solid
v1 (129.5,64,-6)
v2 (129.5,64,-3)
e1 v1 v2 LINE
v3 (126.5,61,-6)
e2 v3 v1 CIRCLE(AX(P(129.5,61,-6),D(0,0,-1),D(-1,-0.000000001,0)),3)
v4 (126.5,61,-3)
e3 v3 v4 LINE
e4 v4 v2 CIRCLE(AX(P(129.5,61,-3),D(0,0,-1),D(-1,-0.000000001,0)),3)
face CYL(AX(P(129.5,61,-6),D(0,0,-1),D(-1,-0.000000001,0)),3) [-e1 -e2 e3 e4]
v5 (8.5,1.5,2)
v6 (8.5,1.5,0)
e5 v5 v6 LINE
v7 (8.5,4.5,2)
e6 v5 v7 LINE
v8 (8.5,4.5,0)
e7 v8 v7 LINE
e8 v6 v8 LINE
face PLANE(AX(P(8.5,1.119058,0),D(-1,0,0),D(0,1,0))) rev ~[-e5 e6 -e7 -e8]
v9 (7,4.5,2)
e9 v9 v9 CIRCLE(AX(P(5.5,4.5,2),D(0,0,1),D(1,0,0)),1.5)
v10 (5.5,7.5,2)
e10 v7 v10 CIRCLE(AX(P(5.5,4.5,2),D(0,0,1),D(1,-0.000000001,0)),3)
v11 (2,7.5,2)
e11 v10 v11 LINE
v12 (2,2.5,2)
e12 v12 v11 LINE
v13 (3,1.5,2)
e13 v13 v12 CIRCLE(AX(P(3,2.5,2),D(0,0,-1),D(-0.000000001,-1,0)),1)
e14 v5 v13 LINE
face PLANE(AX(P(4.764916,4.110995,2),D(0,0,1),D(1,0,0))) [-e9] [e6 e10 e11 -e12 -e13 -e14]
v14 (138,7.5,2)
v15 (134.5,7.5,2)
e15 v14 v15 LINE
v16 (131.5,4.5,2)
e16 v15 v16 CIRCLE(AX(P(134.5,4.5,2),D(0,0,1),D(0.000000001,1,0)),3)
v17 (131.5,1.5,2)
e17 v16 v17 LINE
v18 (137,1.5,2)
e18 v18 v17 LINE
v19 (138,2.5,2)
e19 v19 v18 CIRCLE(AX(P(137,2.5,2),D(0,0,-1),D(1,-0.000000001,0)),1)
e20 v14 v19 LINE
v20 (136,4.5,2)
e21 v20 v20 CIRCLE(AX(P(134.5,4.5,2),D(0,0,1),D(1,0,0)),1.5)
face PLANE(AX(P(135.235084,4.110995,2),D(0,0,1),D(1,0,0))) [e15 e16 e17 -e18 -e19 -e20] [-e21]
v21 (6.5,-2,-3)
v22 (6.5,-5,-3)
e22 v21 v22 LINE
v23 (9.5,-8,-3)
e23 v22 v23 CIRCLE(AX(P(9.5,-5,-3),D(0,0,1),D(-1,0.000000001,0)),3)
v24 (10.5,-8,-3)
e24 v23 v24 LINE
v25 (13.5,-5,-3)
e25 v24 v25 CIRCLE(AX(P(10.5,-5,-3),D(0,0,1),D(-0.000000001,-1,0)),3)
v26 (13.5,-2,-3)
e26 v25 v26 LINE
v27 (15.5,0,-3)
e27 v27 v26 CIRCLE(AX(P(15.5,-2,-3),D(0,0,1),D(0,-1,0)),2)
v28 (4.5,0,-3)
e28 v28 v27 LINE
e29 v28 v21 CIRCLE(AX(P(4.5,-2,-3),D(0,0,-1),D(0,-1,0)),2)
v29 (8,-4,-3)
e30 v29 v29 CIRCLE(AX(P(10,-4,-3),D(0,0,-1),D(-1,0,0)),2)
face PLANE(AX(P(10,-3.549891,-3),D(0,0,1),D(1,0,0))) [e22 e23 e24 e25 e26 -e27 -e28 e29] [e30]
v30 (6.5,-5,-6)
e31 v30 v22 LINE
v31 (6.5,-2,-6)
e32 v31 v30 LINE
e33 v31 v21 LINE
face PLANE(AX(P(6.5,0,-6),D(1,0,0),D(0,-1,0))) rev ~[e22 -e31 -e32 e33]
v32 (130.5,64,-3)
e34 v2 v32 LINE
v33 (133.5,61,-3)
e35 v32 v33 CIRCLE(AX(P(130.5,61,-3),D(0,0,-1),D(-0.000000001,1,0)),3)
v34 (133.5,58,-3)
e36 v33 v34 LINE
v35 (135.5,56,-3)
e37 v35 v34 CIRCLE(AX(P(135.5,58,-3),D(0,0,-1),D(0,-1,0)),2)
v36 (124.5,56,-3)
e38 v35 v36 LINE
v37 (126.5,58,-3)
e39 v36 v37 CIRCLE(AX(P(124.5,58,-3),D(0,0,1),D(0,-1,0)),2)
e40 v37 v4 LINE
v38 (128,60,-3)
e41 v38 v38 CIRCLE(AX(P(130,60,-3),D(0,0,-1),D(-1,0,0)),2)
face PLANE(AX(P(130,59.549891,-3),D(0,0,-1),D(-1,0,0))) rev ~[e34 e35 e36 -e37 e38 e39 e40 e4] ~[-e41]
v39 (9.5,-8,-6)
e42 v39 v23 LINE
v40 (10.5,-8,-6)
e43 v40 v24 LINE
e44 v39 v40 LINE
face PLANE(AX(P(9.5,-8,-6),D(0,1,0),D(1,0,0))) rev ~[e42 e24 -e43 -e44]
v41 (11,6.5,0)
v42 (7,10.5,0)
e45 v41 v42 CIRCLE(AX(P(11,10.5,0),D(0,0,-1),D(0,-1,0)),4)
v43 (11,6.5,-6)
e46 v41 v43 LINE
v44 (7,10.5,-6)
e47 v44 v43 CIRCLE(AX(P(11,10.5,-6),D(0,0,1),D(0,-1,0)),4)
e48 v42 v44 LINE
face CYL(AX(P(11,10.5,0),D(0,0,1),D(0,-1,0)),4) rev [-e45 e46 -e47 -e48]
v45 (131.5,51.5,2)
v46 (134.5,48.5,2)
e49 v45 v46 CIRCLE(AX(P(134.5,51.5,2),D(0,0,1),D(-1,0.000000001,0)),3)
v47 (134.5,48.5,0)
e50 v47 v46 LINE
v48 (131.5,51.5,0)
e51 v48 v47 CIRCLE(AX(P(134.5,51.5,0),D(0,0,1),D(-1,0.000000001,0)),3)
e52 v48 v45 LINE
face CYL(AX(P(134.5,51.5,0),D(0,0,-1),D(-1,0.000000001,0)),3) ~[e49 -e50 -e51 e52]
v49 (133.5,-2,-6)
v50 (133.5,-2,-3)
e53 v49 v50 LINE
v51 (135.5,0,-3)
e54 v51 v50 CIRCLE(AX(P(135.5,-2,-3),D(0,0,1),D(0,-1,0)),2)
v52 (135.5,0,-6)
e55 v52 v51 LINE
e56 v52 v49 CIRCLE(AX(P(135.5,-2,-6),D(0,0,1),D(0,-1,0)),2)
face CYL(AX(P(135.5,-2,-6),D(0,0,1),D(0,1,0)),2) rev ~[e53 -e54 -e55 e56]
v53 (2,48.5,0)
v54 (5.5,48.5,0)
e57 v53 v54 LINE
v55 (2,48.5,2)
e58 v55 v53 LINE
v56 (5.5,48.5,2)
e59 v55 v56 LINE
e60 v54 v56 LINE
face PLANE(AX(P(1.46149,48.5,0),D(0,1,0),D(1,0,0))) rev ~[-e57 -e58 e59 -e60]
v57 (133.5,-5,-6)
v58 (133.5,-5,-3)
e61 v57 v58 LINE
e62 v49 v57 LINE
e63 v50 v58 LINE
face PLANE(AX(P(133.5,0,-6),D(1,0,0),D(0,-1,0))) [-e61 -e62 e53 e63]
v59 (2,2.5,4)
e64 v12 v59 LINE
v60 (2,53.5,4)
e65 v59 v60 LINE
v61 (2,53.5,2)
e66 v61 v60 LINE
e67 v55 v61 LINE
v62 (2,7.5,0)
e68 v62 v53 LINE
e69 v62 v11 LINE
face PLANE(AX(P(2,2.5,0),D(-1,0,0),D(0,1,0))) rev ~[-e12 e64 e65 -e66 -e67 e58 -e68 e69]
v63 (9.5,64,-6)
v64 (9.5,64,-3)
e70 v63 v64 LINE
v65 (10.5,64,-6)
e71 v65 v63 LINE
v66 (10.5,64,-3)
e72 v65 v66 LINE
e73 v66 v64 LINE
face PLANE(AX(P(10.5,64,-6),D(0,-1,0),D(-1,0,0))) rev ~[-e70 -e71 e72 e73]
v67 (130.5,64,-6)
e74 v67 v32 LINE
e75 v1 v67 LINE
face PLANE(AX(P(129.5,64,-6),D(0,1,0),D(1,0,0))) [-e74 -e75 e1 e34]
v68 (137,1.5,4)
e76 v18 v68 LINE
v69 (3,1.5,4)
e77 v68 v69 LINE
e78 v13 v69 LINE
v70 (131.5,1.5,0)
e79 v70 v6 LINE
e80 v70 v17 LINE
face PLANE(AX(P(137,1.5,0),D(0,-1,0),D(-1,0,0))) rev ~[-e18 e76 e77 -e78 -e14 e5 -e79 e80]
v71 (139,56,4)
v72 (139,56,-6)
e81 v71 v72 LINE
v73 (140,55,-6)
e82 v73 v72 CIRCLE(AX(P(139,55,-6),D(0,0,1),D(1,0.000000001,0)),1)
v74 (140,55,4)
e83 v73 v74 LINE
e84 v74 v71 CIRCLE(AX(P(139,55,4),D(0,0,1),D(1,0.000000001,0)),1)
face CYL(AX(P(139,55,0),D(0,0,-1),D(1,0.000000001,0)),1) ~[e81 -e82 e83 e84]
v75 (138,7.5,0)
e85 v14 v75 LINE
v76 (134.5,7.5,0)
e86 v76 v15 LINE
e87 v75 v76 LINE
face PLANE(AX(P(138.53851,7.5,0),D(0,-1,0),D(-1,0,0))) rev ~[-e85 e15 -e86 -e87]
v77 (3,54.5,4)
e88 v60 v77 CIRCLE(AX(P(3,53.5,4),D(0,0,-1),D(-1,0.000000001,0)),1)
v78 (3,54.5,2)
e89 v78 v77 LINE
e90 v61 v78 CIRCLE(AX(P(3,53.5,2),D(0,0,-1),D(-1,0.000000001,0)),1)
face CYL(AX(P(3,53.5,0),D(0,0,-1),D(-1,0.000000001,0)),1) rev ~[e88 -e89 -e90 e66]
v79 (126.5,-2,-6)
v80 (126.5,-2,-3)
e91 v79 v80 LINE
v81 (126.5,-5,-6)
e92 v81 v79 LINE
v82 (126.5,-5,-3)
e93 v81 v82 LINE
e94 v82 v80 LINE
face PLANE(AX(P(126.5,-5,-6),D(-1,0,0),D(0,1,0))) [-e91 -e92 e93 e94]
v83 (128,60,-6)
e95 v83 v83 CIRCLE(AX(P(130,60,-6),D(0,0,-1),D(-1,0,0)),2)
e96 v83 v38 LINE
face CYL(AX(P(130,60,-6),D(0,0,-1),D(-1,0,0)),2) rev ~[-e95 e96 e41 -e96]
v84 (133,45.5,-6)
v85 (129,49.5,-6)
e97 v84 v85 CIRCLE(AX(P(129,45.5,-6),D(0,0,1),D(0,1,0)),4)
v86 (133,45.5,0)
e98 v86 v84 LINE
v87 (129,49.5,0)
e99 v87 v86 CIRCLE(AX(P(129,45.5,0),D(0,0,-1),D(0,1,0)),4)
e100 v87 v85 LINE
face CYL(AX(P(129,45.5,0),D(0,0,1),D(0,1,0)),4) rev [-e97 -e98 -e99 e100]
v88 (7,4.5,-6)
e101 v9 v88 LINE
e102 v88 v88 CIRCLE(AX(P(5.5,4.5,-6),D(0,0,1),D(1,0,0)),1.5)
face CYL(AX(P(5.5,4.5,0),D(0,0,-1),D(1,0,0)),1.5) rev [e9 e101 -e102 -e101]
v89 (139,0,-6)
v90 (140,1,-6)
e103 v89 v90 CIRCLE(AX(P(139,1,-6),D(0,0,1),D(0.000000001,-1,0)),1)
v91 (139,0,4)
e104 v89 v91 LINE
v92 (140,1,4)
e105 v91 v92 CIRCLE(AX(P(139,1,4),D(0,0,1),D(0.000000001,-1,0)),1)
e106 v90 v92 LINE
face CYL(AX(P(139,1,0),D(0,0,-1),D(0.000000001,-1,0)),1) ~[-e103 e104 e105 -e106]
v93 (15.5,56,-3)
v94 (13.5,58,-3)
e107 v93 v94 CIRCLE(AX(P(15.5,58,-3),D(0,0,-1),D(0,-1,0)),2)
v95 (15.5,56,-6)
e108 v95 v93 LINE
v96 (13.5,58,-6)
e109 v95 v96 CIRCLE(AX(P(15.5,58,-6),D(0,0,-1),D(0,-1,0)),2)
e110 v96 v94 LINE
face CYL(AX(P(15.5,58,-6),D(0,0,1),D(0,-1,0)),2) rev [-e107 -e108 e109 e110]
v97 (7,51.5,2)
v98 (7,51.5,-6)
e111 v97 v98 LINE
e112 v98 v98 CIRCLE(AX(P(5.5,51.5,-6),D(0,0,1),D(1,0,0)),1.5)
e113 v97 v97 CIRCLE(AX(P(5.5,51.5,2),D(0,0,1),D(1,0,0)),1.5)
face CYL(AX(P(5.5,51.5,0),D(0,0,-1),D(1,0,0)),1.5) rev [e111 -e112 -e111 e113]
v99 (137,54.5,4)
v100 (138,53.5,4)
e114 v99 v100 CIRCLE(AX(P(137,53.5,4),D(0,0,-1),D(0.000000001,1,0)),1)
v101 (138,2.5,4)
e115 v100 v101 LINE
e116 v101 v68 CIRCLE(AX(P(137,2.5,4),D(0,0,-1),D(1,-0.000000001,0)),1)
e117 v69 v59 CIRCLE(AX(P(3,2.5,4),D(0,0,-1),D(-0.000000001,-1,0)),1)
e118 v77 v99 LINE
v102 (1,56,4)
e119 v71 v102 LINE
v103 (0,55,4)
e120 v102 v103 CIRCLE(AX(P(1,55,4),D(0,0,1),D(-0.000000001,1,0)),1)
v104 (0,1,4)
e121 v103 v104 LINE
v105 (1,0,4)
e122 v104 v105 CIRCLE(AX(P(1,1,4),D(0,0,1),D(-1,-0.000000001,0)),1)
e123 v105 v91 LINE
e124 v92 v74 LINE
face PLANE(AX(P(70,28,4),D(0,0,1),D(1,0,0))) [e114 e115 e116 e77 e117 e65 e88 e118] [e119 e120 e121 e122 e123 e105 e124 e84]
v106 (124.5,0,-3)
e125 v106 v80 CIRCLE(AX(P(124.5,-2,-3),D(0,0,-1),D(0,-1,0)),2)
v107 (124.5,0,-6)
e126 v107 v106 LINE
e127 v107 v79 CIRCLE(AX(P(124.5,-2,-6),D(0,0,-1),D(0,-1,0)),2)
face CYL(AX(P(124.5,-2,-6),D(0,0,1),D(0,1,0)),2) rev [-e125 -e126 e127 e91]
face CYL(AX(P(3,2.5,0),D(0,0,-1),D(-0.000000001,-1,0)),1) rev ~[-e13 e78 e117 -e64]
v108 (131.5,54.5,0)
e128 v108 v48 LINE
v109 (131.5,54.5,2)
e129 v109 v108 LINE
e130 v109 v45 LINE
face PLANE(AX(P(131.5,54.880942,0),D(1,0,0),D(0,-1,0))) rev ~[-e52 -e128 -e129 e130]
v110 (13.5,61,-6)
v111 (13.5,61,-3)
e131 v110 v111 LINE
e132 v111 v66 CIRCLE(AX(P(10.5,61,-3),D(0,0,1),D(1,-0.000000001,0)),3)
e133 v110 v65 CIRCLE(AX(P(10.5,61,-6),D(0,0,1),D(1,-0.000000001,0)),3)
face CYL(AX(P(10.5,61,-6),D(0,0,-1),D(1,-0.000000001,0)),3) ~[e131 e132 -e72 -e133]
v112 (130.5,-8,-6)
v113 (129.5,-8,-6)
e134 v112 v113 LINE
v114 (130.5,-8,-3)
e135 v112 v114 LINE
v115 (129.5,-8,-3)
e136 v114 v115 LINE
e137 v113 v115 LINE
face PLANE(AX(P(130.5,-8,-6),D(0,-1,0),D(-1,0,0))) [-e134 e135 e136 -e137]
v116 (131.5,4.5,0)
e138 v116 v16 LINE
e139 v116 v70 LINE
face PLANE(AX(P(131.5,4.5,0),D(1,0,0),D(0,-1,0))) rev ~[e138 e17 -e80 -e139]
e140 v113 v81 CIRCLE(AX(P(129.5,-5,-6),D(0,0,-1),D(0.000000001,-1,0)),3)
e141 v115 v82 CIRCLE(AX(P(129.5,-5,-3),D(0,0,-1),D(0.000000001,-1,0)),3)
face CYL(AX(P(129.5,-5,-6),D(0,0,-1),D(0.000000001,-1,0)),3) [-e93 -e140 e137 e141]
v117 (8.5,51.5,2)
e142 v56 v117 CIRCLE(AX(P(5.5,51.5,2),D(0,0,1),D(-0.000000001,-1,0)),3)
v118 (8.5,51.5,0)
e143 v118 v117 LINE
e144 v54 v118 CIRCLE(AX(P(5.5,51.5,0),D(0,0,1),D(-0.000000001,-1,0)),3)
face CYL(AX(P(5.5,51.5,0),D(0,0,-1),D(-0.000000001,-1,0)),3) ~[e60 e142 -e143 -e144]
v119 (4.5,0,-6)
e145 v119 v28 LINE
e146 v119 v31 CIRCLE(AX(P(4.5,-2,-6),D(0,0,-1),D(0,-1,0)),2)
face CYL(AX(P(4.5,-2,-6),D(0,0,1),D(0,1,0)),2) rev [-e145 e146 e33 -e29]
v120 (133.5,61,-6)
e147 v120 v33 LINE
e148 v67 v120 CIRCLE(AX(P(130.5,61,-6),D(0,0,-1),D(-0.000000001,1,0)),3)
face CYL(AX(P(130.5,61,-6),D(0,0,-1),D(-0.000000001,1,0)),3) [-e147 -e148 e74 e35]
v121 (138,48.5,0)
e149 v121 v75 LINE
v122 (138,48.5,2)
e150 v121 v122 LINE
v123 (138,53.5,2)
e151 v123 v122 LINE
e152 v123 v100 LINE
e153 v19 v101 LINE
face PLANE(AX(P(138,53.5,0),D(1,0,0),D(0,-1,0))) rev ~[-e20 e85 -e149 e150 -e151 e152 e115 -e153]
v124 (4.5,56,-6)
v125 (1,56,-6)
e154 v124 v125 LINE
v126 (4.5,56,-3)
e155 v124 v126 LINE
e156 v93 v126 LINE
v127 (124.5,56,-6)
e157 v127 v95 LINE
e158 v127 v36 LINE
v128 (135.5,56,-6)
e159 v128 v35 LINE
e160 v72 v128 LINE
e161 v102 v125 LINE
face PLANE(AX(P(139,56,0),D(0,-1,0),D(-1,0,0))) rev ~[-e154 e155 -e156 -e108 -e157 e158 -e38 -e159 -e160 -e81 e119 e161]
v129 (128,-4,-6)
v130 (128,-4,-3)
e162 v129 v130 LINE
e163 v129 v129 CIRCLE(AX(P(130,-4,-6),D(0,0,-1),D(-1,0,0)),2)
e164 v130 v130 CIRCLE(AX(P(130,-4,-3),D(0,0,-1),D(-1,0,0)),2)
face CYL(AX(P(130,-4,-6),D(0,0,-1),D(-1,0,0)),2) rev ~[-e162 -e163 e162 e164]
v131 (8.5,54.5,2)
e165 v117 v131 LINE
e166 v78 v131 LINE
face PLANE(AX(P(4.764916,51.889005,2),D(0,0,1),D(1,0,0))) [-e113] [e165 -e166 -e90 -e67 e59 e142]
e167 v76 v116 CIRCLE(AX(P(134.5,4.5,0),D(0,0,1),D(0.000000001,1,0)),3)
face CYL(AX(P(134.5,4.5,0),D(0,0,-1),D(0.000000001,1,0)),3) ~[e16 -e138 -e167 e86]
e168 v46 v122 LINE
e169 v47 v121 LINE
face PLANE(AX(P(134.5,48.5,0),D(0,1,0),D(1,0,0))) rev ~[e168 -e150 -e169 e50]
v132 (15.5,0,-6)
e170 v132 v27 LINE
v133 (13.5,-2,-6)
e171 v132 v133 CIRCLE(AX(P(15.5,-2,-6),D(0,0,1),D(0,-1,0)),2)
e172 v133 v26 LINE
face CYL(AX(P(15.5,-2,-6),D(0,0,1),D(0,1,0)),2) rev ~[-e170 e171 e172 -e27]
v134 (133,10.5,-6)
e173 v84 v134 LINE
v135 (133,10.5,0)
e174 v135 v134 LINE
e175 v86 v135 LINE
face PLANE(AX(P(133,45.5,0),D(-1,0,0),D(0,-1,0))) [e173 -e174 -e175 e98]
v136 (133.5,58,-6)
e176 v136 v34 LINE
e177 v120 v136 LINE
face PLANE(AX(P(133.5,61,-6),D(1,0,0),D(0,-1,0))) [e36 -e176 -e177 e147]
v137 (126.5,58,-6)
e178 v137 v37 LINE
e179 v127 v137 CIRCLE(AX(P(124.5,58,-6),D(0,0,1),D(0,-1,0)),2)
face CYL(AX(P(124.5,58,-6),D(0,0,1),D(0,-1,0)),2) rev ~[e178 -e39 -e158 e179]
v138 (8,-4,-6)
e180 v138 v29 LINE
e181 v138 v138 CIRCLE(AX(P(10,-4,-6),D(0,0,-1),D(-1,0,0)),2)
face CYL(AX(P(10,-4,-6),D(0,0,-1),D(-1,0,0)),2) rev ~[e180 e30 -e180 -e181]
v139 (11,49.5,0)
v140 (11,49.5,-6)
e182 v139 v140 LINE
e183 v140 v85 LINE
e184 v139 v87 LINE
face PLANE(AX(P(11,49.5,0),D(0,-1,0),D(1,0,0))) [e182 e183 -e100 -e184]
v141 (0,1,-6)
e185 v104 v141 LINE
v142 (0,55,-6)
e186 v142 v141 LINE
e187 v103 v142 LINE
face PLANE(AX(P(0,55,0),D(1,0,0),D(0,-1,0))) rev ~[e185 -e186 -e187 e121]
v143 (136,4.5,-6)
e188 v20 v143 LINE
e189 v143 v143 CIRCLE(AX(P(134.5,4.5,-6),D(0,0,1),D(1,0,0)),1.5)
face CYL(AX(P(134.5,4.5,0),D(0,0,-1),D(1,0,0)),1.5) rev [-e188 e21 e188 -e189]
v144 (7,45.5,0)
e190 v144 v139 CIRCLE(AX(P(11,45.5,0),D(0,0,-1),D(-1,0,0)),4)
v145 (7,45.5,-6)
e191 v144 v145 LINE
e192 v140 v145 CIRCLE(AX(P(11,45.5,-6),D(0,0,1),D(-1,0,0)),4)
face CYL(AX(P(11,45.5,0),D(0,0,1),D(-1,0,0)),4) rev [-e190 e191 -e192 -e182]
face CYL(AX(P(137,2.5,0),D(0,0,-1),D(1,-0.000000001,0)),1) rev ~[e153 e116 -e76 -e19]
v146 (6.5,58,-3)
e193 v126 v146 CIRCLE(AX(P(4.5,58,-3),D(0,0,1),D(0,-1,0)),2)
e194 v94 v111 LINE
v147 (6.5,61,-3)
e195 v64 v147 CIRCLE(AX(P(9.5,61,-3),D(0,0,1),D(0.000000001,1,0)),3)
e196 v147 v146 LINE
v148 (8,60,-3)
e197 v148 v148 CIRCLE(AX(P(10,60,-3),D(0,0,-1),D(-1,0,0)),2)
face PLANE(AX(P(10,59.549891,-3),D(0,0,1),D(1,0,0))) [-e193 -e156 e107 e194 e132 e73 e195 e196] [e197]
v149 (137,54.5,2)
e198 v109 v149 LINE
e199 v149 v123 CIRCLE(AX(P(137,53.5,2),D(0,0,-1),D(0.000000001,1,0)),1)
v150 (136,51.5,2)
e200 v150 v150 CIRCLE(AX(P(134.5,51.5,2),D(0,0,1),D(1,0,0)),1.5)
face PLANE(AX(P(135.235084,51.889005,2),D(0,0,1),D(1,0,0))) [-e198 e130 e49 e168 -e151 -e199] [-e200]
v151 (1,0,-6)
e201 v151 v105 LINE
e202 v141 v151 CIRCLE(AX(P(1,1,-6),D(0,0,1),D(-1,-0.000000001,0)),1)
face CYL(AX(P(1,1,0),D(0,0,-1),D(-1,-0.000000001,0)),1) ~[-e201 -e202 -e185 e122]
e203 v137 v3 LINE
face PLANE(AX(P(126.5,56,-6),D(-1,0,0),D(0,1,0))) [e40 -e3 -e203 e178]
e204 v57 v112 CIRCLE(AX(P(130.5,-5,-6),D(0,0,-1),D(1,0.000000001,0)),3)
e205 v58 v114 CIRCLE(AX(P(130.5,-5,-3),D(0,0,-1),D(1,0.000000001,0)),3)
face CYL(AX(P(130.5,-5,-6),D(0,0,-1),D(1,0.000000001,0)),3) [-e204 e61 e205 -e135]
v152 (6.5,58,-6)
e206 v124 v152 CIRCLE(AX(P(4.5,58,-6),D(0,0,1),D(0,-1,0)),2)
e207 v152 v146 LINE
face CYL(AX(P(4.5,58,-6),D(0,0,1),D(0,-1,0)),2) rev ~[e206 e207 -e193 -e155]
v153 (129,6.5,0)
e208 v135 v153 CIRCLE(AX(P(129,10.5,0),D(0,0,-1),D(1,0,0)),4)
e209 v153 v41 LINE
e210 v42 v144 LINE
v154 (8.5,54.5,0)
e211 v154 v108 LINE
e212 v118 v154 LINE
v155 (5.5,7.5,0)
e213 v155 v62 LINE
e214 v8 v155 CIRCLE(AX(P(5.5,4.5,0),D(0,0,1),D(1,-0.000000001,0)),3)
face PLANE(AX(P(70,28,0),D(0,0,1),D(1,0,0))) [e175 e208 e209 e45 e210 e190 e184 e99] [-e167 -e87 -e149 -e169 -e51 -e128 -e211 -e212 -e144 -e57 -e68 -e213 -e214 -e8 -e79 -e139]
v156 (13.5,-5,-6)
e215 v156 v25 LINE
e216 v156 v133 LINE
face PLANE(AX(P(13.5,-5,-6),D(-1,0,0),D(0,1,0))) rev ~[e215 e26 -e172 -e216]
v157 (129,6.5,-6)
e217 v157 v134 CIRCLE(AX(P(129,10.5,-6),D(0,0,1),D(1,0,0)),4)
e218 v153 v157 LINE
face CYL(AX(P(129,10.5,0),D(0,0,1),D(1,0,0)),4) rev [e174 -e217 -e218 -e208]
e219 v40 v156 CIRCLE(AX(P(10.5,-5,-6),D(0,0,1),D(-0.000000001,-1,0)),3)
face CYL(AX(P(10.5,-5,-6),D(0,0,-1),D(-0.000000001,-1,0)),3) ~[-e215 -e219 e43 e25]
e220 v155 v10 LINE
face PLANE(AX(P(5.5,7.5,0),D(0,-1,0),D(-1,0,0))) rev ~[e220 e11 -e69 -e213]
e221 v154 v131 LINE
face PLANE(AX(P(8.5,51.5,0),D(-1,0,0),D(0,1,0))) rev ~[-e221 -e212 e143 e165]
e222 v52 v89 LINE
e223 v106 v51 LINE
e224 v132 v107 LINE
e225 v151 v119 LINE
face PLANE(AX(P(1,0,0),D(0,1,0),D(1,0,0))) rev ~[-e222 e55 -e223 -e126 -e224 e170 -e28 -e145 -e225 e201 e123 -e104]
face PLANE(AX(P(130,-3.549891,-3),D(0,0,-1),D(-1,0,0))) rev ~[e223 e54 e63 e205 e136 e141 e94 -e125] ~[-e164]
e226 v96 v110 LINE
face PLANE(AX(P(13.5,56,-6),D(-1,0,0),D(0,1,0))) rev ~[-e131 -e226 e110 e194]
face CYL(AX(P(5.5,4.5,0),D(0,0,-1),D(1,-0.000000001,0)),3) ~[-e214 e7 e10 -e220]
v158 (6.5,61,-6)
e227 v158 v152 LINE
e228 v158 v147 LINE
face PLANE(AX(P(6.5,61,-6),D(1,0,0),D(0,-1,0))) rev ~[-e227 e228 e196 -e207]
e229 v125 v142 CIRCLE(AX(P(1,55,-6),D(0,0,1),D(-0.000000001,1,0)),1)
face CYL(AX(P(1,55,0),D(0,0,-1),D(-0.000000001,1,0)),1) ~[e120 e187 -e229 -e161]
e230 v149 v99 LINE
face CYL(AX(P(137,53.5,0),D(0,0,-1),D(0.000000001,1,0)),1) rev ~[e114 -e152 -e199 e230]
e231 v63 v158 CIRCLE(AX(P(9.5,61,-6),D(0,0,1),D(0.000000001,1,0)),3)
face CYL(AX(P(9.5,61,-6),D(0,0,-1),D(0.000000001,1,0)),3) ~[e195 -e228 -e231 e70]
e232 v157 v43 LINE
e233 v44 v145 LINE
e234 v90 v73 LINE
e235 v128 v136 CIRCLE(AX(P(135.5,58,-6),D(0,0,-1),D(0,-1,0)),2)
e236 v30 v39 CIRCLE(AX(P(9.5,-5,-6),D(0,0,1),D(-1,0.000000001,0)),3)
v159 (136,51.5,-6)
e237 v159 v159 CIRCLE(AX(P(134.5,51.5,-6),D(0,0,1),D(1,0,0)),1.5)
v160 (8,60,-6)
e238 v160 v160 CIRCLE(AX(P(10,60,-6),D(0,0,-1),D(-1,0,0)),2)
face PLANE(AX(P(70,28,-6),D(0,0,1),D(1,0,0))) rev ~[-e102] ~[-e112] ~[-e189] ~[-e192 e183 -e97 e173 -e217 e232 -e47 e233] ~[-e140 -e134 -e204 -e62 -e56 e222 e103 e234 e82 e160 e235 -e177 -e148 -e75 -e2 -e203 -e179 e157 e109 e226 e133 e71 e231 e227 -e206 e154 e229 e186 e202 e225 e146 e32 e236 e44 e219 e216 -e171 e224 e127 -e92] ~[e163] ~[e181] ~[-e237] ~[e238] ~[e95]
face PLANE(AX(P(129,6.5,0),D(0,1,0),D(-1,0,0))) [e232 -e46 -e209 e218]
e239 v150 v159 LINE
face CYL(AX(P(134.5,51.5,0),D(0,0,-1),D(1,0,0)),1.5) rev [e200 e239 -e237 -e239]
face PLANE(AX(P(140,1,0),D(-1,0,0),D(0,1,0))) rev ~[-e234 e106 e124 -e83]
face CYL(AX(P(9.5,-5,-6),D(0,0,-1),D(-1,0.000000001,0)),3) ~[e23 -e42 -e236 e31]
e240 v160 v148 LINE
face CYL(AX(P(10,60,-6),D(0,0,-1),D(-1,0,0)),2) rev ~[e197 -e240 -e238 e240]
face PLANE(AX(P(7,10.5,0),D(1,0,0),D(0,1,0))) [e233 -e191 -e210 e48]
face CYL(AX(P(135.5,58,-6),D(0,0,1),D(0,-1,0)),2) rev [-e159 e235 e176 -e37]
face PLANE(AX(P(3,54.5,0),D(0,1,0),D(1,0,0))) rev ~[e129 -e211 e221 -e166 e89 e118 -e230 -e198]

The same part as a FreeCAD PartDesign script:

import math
import FreeCAD as App
import Part
import Sketcher
Q = App.Units.Quantity


def edges_at(feature, points):
    """Names of the edges that pass closest to the given points."""
    edges = feature.Shape.Edges
    near = lambda p: min(range(len(edges)), key=lambda i: edges[i].distToShape(Part.Vertex(*p))[0])
    return sorted({f"Edge{near(p) + 1}" for p in points})

doc = App.newDocument("Part")
params = doc.addObject("Spreadsheet::Sheet", "Params")
for row, (alias, value) in enumerate([
    ("sketch1_diameter", "3 mm"),
    ("sketch1_radius", "1 mm"),
    ("sketch1_width", "138 mm"),
    ("sketch1_height", "54 mm"),
    ("pad1_length", "6 mm"),
    ("sketch2_radius", "1 mm"),
    ("sketch2_width", "138 mm"),
    ("sketch2_width2", "134 mm"),
    ("sketch2_height", "54 mm"),
    ("sketch2_height2", "51 mm"),
    ("pad2_length", "4 mm"),
    ("sketch3_radius", "4 mm"),
    ("sketch3_width", "118 mm"),
    ("sketch3_height", "35 mm"),
    ("sketch4_diameter", "4 mm"),
    ("sketch4_radius", "3 mm"),
    ("sketch4_width", "7 mm"),
    ("sketch4_height", "5 mm"),
    ("pad3_length", "3 mm"),
    ("fillet_radius", "2 mm"),
    ("sketch5_diameter", "3 mm"),
    ("sketch5_radius", "3 mm"),
    ("pad4_length", "2 mm"),
], start=1):
    params.set(f"A{row}", alias)
    params.set(f"B{row}", "=" + value)
    params.setAlias(f"B{row}", alias)

body = doc.addObject("PartDesign::Body", "Body")

# Sketch on XY plane
sketch1 = body.newObject("Sketcher::SketchObject", "Sketch")
sketch1.AttachmentSupport = (doc.getObject("XY_Plane"), [""])
sketch1.MapMode = "FlatFace"
sketch1.addGeometry([
    Part.LineSegment(App.Vector(1, 0, 0), App.Vector(139, 0, 0)),  # 0
    Part.ArcOfCircle(Part.Circle(App.Vector(139, 1, 0), App.Vector(0, 0, 1), 1), math.radians(-90), math.radians(0)),  # 1
    Part.LineSegment(App.Vector(140, 1, 0), App.Vector(140, 55, 0)),  # 2
    Part.ArcOfCircle(Part.Circle(App.Vector(139, 55, 0), App.Vector(0, 0, 1), 1), math.radians(0), math.radians(90)),  # 3
    Part.LineSegment(App.Vector(139, 56, 0), App.Vector(1, 56, 0)),  # 4
    Part.ArcOfCircle(Part.Circle(App.Vector(1, 55, 0), App.Vector(0, 0, 1), 1), math.radians(90), math.radians(180)),  # 5
    Part.LineSegment(App.Vector(0, 55, 0), App.Vector(0, 1, 0)),  # 6
    Part.ArcOfCircle(Part.Circle(App.Vector(1, 1, 0), App.Vector(0, 0, 1), 1), math.radians(-180), math.radians(-90)),  # 7
    Part.Circle(App.Vector(5.5, 4.5, 0), App.Vector(0, 0, 1), 1.5),  # 8
    Part.Circle(App.Vector(134.5, 4.5, 0), App.Vector(0, 0, 1), 1.5),  # 9
    Part.Circle(App.Vector(5.5, 51.5, 0), App.Vector(0, 0, 1), 1.5),  # 10
    Part.Circle(App.Vector(134.5, 51.5, 0), App.Vector(0, 0, 1), 1.5),  # 11
], False)
sketch1.addConstraint([
    Sketcher.Constraint("Tangent", 0, 2, 1, 1),
    Sketcher.Constraint("Tangent", 1, 2, 2, 1),
    Sketcher.Constraint("Tangent", 2, 2, 3, 1),
    Sketcher.Constraint("Tangent", 3, 2, 4, 1),
    Sketcher.Constraint("Tangent", 4, 2, 5, 1),
    Sketcher.Constraint("Tangent", 5, 2, 6, 1),
    Sketcher.Constraint("Tangent", 6, 2, 7, 1),
    Sketcher.Constraint("Tangent", 7, 2, 0, 1),
    Sketcher.Constraint("Horizontal", 0),
    Sketcher.Constraint("Vertical", 2),
    Sketcher.Constraint("Horizontal", 4),
    Sketcher.Constraint("Vertical", 6),
    Sketcher.Constraint("Equal", 1, 3),
    Sketcher.Constraint("Equal", 3, 5),
    Sketcher.Constraint("Equal", 5, 7),
    Sketcher.Constraint("Equal", 8, 9),
    Sketcher.Constraint("Equal", 9, 10),
    Sketcher.Constraint("Equal", 10, 11),
    Sketcher.Constraint("PointOnObject", 0, 2, -1),
    Sketcher.Constraint("PointOnObject", 5, 2, -2),
    Sketcher.Constraint("Horizontal", 8, 3, 9, 3),
    Sketcher.Constraint("Horizontal", 10, 3, 11, 3),
    Sketcher.Constraint("Vertical", 8, 3, 10, 3),
    Sketcher.Constraint("Vertical", 9, 3, 11, 3),
    Sketcher.Constraint("Diameter", 8, Q("3 mm")),
    Sketcher.Constraint("Radius", 1, Q("1 mm")),
    Sketcher.Constraint("DistanceX", 0, 1, 0, 2, Q("138 mm")),
    Sketcher.Constraint("DistanceY", 2, 1, 2, 2, Q("54 mm")),
    Sketcher.Constraint("DistanceX", 8, 3, 9, 3, Q("129 mm")),
    Sketcher.Constraint("DistanceY", 8, 3, 10, 3, Q("47 mm")),
    Sketcher.Constraint("DistanceX", -1, 1, 8, 3, Q("5.5 mm")),
    Sketcher.Constraint("DistanceY", -1, 1, 8, 3, Q("4.5 mm")),
])
sketch1.setExpression("Constraints[24]", "Params.sketch1_diameter")
sketch1.setExpression("Constraints[25]", "Params.sketch1_radius")
sketch1.setExpression("Constraints[26]", "Params.sketch1_width")
sketch1.setExpression("Constraints[27]", "Params.sketch1_height")
pad1 = body.newObject("PartDesign::Pad", "Pad")
pad1.Profile = sketch1
pad1.setExpression("Length", "Params.pad1_length")
pad1.Reversed = True

# Sketch on XY plane
sketch2 = body.newObject("Sketcher::SketchObject", "Sketch001")
sketch2.AttachmentSupport = (doc.getObject("XY_Plane"), [""])
sketch2.MapMode = "FlatFace"
sketch2.addGeometry([
    Part.ArcOfCircle(Part.Circle(App.Vector(1, 1, 0), App.Vector(0, 0, 1), 1), math.radians(-180), math.radians(-90)),  # 0
    Part.LineSegment(App.Vector(1, 0, 0), App.Vector(139, 0, 0)),  # 1
    Part.ArcOfCircle(Part.Circle(App.Vector(139, 1, 0), App.Vector(0, 0, 1), 1), math.radians(-90), math.radians(0)),  # 2
    Part.LineSegment(App.Vector(140, 1, 0), App.Vector(140, 55, 0)),  # 3
    Part.ArcOfCircle(Part.Circle(App.Vector(139, 55, 0), App.Vector(0, 0, 1), 1), math.radians(0), math.radians(90)),  # 4
    Part.LineSegment(App.Vector(139, 56, 0), App.Vector(1, 56, 0)),  # 5
    Part.ArcOfCircle(Part.Circle(App.Vector(1, 55, 0), App.Vector(0, 0, 1), 1), math.radians(90), math.radians(180)),  # 6
    Part.LineSegment(App.Vector(0, 55, 0), App.Vector(0, 1, 0)),  # 7
    Part.LineSegment(App.Vector(2, 2.5, 0), App.Vector(2, 53.5, 0)),  # 8
    Part.ArcOfCircle(Part.Circle(App.Vector(3, 53.5, 0), App.Vector(0, 0, 1), 1), math.radians(90), math.radians(180)),  # 9
    Part.LineSegment(App.Vector(3, 54.5, 0), App.Vector(137, 54.5, 0)),  # 10
    Part.ArcOfCircle(Part.Circle(App.Vector(137, 53.5, 0), App.Vector(0, 0, 1), 1), math.radians(0), math.radians(90)),  # 11
    Part.LineSegment(App.Vector(138, 53.5, 0), App.Vector(138, 2.5, 0)),  # 12
    Part.ArcOfCircle(Part.Circle(App.Vector(137, 2.5, 0), App.Vector(0, 0, 1), 1), math.radians(-90), math.radians(0)),  # 13
    Part.LineSegment(App.Vector(137, 1.5, 0), App.Vector(3, 1.5, 0)),  # 14
    Part.ArcOfCircle(Part.Circle(App.Vector(3, 2.5, 0), App.Vector(0, 0, 1), 1), math.radians(-180), math.radians(-90)),  # 15
], False)
sketch2.addConstraint([
    Sketcher.Constraint("Tangent", 0, 2, 1, 1),
    Sketcher.Constraint("Tangent", 1, 2, 2, 1),
    Sketcher.Constraint("Tangent", 2, 2, 3, 1),
    Sketcher.Constraint("Tangent", 3, 2, 4, 1),
    Sketcher.Constraint("Tangent", 4, 2, 5, 1),
    Sketcher.Constraint("Tangent", 5, 2, 6, 1),
    Sketcher.Constraint("Tangent", 6, 2, 7, 1),
    Sketcher.Constraint("Tangent", 7, 2, 0, 1),
    Sketcher.Constraint("Tangent", 8, 2, 9, 2),
    Sketcher.Constraint("Tangent", 9, 1, 10, 1),
    Sketcher.Constraint("Tangent", 10, 2, 11, 2),
    Sketcher.Constraint("Tangent", 11, 1, 12, 1),
    Sketcher.Constraint("Tangent", 12, 2, 13, 2),
    Sketcher.Constraint("Tangent", 13, 1, 14, 1),
    Sketcher.Constraint("Tangent", 14, 2, 15, 2),
    Sketcher.Constraint("Tangent", 15, 1, 8, 1),
    Sketcher.Constraint("Horizontal", 1),
    Sketcher.Constraint("Vertical", 3),
    Sketcher.Constraint("Horizontal", 5),
    Sketcher.Constraint("Vertical", 7),
    Sketcher.Constraint("Vertical", 8),
    Sketcher.Constraint("Horizontal", 10),
    Sketcher.Constraint("Vertical", 12),
    Sketcher.Constraint("Horizontal", 14),
    Sketcher.Constraint("Equal", 0, 2),
    Sketcher.Constraint("Equal", 2, 4),
    Sketcher.Constraint("Equal", 4, 6),
    Sketcher.Constraint("Equal", 6, 9),
    Sketcher.Constraint("Equal", 9, 11),
    Sketcher.Constraint("Equal", 11, 13),
    Sketcher.Constraint("Equal", 13, 15),
    Sketcher.Constraint("PointOnObject", 0, 2, -1),
    Sketcher.Constraint("PointOnObject", 6, 2, -2),
    Sketcher.Constraint("Radius", 0, Q("1 mm")),
    Sketcher.Constraint("DistanceX", 1, 1, 1, 2, Q("138 mm")),
    Sketcher.Constraint("DistanceX", 10, 1, 10, 2, Q("134 mm")),
    Sketcher.Constraint("DistanceY", 3, 1, 3, 2, Q("54 mm")),
    Sketcher.Constraint("DistanceY", 8, 1, 8, 2, Q("51 mm")),
    Sketcher.Constraint("DistanceX", -1, 1, 9, 3, Q("3 mm")),
    Sketcher.Constraint("DistanceY", -1, 1, 9, 3, Q("53.5 mm")),
])
sketch2.setExpression("Constraints[33]", "Params.sketch2_radius")
sketch2.setExpression("Constraints[34]", "Params.sketch2_width")
sketch2.setExpression("Constraints[35]", "Params.sketch2_width2")
sketch2.setExpression("Constraints[36]", "Params.sketch2_height")
sketch2.setExpression("Constraints[37]", "Params.sketch2_height2")
pad2 = body.newObject("PartDesign::Pad", "Pad001")
pad2.Profile = sketch2
pad2.setExpression("Length", "Params.pad2_length")

# Sketch on XY plane
sketch3 = body.newObject("Sketcher::SketchObject", "Sketch002")
sketch3.AttachmentSupport = (doc.getObject("XY_Plane"), [""])
sketch3.MapMode = "FlatFace"
sketch3.addGeometry([
    Part.LineSegment(App.Vector(129, 49.5, 0), App.Vector(11, 49.5, 0)),  # 0
    Part.ArcOfCircle(Part.Circle(App.Vector(11, 45.5, 0), App.Vector(0, 0, 1), 4), math.radians(90), math.radians(180)),  # 1
    Part.LineSegment(App.Vector(7, 45.5, 0), App.Vector(7, 10.5, 0)),  # 2
    Part.ArcOfCircle(Part.Circle(App.Vector(11, 10.5, 0), App.Vector(0, 0, 1), 4), math.radians(180), math.radians(270)),  # 3
    Part.LineSegment(App.Vector(11, 6.5, 0), App.Vector(129, 6.5, 0)),  # 4
    Part.ArcOfCircle(Part.Circle(App.Vector(129, 10.5, 0), App.Vector(0, 0, 1), 4), math.radians(-90), math.radians(0)),  # 5
    Part.LineSegment(App.Vector(133, 10.5, 0), App.Vector(133, 45.5, 0)),  # 6
    Part.ArcOfCircle(Part.Circle(App.Vector(129, 45.5, 0), App.Vector(0, 0, 1), 4), math.radians(0), math.radians(90)),  # 7
], False)
sketch3.addConstraint([
    Sketcher.Constraint("Tangent", 0, 2, 1, 1),
    Sketcher.Constraint("Tangent", 1, 2, 2, 1),
    Sketcher.Constraint("Tangent", 2, 2, 3, 1),
    Sketcher.Constraint("Tangent", 3, 2, 4, 1),
    Sketcher.Constraint("Tangent", 4, 2, 5, 1),
    Sketcher.Constraint("Tangent", 5, 2, 6, 1),
    Sketcher.Constraint("Tangent", 6, 2, 7, 1),
    Sketcher.Constraint("Tangent", 7, 2, 0, 1),
    Sketcher.Constraint("Horizontal", 0),
    Sketcher.Constraint("Vertical", 2),
    Sketcher.Constraint("Horizontal", 4),
    Sketcher.Constraint("Vertical", 6),
    Sketcher.Constraint("Equal", 1, 3),
    Sketcher.Constraint("Equal", 3, 5),
    Sketcher.Constraint("Equal", 5, 7),
    Sketcher.Constraint("Radius", 1, Q("4 mm")),
    Sketcher.Constraint("DistanceX", 0, 2, 0, 1, Q("118 mm")),
    Sketcher.Constraint("DistanceY", 2, 2, 2, 1, Q("35 mm")),
    Sketcher.Constraint("DistanceX", -1, 1, 1, 3, Q("11 mm")),
    Sketcher.Constraint("DistanceY", -1, 1, 1, 3, Q("45.5 mm")),
])
sketch3.setExpression("Constraints[15]", "Params.sketch3_radius")
sketch3.setExpression("Constraints[16]", "Params.sketch3_width")
sketch3.setExpression("Constraints[17]", "Params.sketch3_height")
pocket1 = body.newObject("PartDesign::Pocket", "Pocket")
pocket1.Profile = sketch3
pocket1.Type = "ThroughAll"
pocket1.Midplane = True

# Sketch on XY plane
sketch4 = body.newObject("Sketcher::SketchObject", "Sketch003")
sketch4.AttachmentSupport = (doc.getObject("XY_Plane"), [""])
sketch4.MapMode = "FlatFace"
sketch4.AttachmentOffset = App.Placement(App.Vector(0, 0, -6), App.Rotation())
sketch4.addGeometry([
    Part.LineSegment(App.Vector(6.5, -5, 0), App.Vector(6.5, 0, 0)),  # 0
    Part.LineSegment(App.Vector(6.5, 0, 0), App.Vector(13.5, 0, 0)),  # 1
    Part.LineSegment(App.Vector(13.5, 0, 0), App.Vector(13.5, -5, 0)),  # 2
    Part.ArcOfCircle(Part.Circle(App.Vector(10.5, -5, 0), App.Vector(0, 0, 1), 3), math.radians(-90), math.radians(0)),  # 3
    Part.LineSegment(App.Vector(10.5, -8, 0), App.Vector(9.5, -8, 0)),  # 4
    Part.ArcOfCircle(Part.Circle(App.Vector(9.5, -5, 0), App.Vector(0, 0, 1), 3), math.radians(180), math.radians(270)),  # 5
    Part.Circle(App.Vector(10, -4, 0), App.Vector(0, 0, 1), 2),  # 6
    Part.LineSegment(App.Vector(13.5, 56, 0), App.Vector(6.5, 56, 0)),  # 7
    Part.LineSegment(App.Vector(6.5, 56, 0), App.Vector(6.5, 61, 0)),  # 8
    Part.ArcOfCircle(Part.Circle(App.Vector(9.5, 61, 0), App.Vector(0, 0, 1), 3), math.radians(90), math.radians(180)),  # 9
    Part.LineSegment(App.Vector(9.5, 64, 0), App.Vector(10.5, 64, 0)),  # 10
    Part.ArcOfCircle(Part.Circle(App.Vector(10.5, 61, 0), App.Vector(0, 0, 1), 3), math.radians(0), math.radians(90)),  # 11
    Part.LineSegment(App.Vector(13.5, 61, 0), App.Vector(13.5, 56, 0)),  # 12
    Part.Circle(App.Vector(10, 60, 0), App.Vector(0, 0, 1), 2),  # 13
    Part.LineSegment(App.Vector(126.5, 56, 0), App.Vector(126.5, 61, 0)),  # 14
    Part.ArcOfCircle(Part.Circle(App.Vector(129.5, 61, 0), App.Vector(0, 0, 1), 3), math.radians(90), math.radians(180)),  # 15
    Part.LineSegment(App.Vector(129.5, 64, 0), App.Vector(130.5, 64, 0)),  # 16
    Part.ArcOfCircle(Part.Circle(App.Vector(130.5, 61, 0), App.Vector(0, 0, 1), 3), math.radians(0), math.radians(90)),  # 17
    Part.LineSegment(App.Vector(133.5, 61, 0), App.Vector(133.5, 56, 0)),  # 18
    Part.LineSegment(App.Vector(133.5, 56, 0), App.Vector(126.5, 56, 0)),  # 19
    Part.Circle(App.Vector(130, 60, 0), App.Vector(0, 0, 1), 2),  # 20
    Part.LineSegment(App.Vector(133.5, 0, 0), App.Vector(133.5, -5, 0)),  # 21
    Part.ArcOfCircle(Part.Circle(App.Vector(130.5, -5, 0), App.Vector(0, 0, 1), 3), math.radians(-90), math.radians(0)),  # 22
    Part.LineSegment(App.Vector(130.5, -8, 0), App.Vector(129.5, -8, 0)),  # 23
    Part.ArcOfCircle(Part.Circle(App.Vector(129.5, -5, 0), App.Vector(0, 0, 1), 3), math.radians(180), math.radians(270)),  # 24
    Part.LineSegment(App.Vector(126.5, -5, 0), App.Vector(126.5, 0, 0)),  # 25
    Part.LineSegment(App.Vector(126.5, 0, 0), App.Vector(133.5, 0, 0)),  # 26
    Part.Circle(App.Vector(130, -4, 0), App.Vector(0, 0, 1), 2),  # 27
], False)
sketch4.addConstraint([
    Sketcher.Constraint("Coincident", 0, 2, 1, 1),
    Sketcher.Constraint("Coincident", 1, 2, 2, 1),
    Sketcher.Constraint("Tangent", 2, 2, 3, 2),
    Sketcher.Constraint("Tangent", 3, 1, 4, 1),
    Sketcher.Constraint("Tangent", 4, 2, 5, 2),
    Sketcher.Constraint("Tangent", 5, 1, 0, 1),
    Sketcher.Constraint("Coincident", 7, 2, 8, 1),
    Sketcher.Constraint("Tangent", 8, 2, 9, 2),
    Sketcher.Constraint("Tangent", 9, 1, 10, 1),
    Sketcher.Constraint("Tangent", 10, 2, 11, 2),
    Sketcher.Constraint("Tangent", 11, 1, 12, 1),
    Sketcher.Constraint("Coincident", 12, 2, 7, 1),
    Sketcher.Constraint("Tangent", 14, 2, 15, 2),
    Sketcher.Constraint("Tangent", 15, 1, 16, 1),
    Sketcher.Constraint("Tangent", 16, 2, 17, 2),
    Sketcher.Constraint("Tangent", 17, 1, 18, 1),
    Sketcher.Constraint("Coincident", 18, 2, 19, 1),
    Sketcher.Constraint("Coincident", 19, 2, 14, 1),
    Sketcher.Constraint("Tangent", 21, 2, 22, 2),
    Sketcher.Constraint("Tangent", 22, 1, 23, 1),
    Sketcher.Constraint("Tangent", 23, 2, 24, 2),
    Sketcher.Constraint("Tangent", 24, 1, 25, 1),
    Sketcher.Constraint("Coincident", 25, 2, 26, 1),
    Sketcher.Constraint("Coincident", 26, 2, 21, 1),
    Sketcher.Constraint("Vertical", 0),
    Sketcher.Constraint("Horizontal", 1),
    Sketcher.Constraint("Vertical", 2),
    Sketcher.Constraint("Horizontal", 4),
    Sketcher.Constraint("Horizontal", 7),
    Sketcher.Constraint("Vertical", 8),
    Sketcher.Constraint("Horizontal", 10),
    Sketcher.Constraint("Vertical", 12),
    Sketcher.Constraint("Vertical", 14),
    Sketcher.Constraint("Horizontal", 16),
    Sketcher.Constraint("Vertical", 18),
    Sketcher.Constraint("Horizontal", 19),
    Sketcher.Constraint("Vertical", 21),
    Sketcher.Constraint("Horizontal", 23),
    Sketcher.Constraint("Vertical", 25),
    Sketcher.Constraint("Horizontal", 26),
    Sketcher.Constraint("Equal", 3, 5),
    Sketcher.Constraint("Equal", 5, 9),
    Sketcher.Constraint("Equal", 9, 11),
    Sketcher.Constraint("Equal", 6, 13),
    Sketcher.Constraint("Equal", 11, 15),
    Sketcher.Constraint("Equal", 15, 17),
    Sketcher.Constraint("Equal", 13, 20),
    Sketcher.Constraint("Equal", 17, 22),
    Sketcher.Constraint("Equal", 22, 24),
    Sketcher.Constraint("Equal", 20, 27),
    Sketcher.Constraint("PointOnObject", 0, 2, -1),
    Sketcher.Constraint("PointOnObject", 25, 2, -1),
    Sketcher.Constraint("Horizontal", 11, 3, 15, 3),
    Sketcher.Constraint("Horizontal", 13, 3, 20, 3),
    Sketcher.Constraint("Horizontal", 5, 3, 22, 3),
    Sketcher.Constraint("Horizontal", 6, 3, 27, 3),
    Sketcher.Constraint("Horizontal", 12, 2, 18, 2),
    Sketcher.Constraint("Vertical", 5, 3, 9, 3),
    Sketcher.Constraint("Vertical", 3, 3, 11, 3),
    Sketcher.Constraint("Vertical", 6, 3, 13, 3),
    Sketcher.Constraint("Vertical", 17, 3, 22, 3),
    Sketcher.Constraint("Vertical", 15, 3, 24, 3),
    Sketcher.Constraint("Vertical", 20, 3, 27, 3),
    Sketcher.Constraint("Equal", 10, 16),
    Sketcher.Constraint("Equal", 2, 8),
    Sketcher.Constraint("Diameter", 6, Q("4 mm")),
    Sketcher.Constraint("Radius", 3, Q("3 mm")),
    Sketcher.Constraint("DistanceX", 1, 1, 1, 2, Q("7 mm")),
    Sketcher.Constraint("DistanceY", 0, 1, 0, 2, Q("5 mm")),
    Sketcher.Constraint("DistanceX", -1, 1, 6, 3, Q("10 mm")),
    Sketcher.Constraint("DistanceY", 6, 3, -1, 1, Q("4 mm")),
    Sketcher.Constraint("DistanceY", -1, 1, 9, 3, Q("61 mm")),
    Sketcher.Constraint("DistanceY", -1, 1, 13, 3, Q("60 mm")),
    Sketcher.Constraint("DistanceX", -1, 1, 20, 3, Q("130 mm")),
    Sketcher.Constraint("DistanceX", 11, 3, 15, 3, Q("119 mm")),
    Sketcher.Constraint("DistanceX", -1, 1, 3, 3, Q("10.5 mm")),
])
sketch4.setExpression("Constraints[65]", "Params.sketch4_diameter")
sketch4.setExpression("Constraints[66]", "Params.sketch4_radius")
sketch4.setExpression("Constraints[67]", "Params.sketch4_width")
sketch4.setExpression("Constraints[68]", "Params.sketch4_height")
pad3 = body.newObject("PartDesign::Pad", "Pad002")
pad3.Profile = sketch4
pad3.setExpression("Length", "Params.pad3_length")
doc.recompute()

fillet = body.newObject("PartDesign::Fillet", "Fillet")
fillet.Base = (pad3, edges_at(pad3, [
    (13.5, 0, -4.5),
    (6.5, 0, -4.5),
    (6.5, 56, -4.5),
    (13.5, 56, -4.5),
    (126.5, 56, -4.5),
    (133.5, 56, -4.5),
    (133.5, 0, -4.5),
    (126.5, 0, -4.5),
]))
fillet.setExpression("Radius", "Params.fillet_radius")

# Sketch on XY plane
sketch5 = body.newObject("Sketcher::SketchObject", "Sketch004")
sketch5.AttachmentSupport = (doc.getObject("XY_Plane"), [""])
sketch5.MapMode = "FlatFace"
sketch5.addGeometry([
    Part.LineSegment(App.Vector(8.5, 51.5, 0), App.Vector(8.5, 54.9, 0)),  # 0
    Part.LineSegment(App.Vector(8.5, 54.9, 0), App.Vector(1.5, 54.9, 0)),  # 1
    Part.LineSegment(App.Vector(1.5, 54.9, 0), App.Vector(1.5, 48.5, 0)),  # 2
    Part.LineSegment(App.Vector(1.5, 48.5, 0), App.Vector(5.5, 48.5, 0)),  # 3
    Part.ArcOfCircle(Part.Circle(App.Vector(5.5, 51.5, 0), App.Vector(0, 0, 1), 3), math.radians(-90), math.radians(0)),  # 4
    Part.Circle(App.Vector(5.5, 51.5, 0), App.Vector(0, 0, 1), 1.5),  # 5
    Part.LineSegment(App.Vector(131.5, 54.9, 0), App.Vector(131.5, 51.5, 0)),  # 6
    Part.ArcOfCircle(Part.Circle(App.Vector(134.5, 51.5, 0), App.Vector(0, 0, 1), 3), math.radians(180), math.radians(270)),  # 7
    Part.LineSegment(App.Vector(134.5, 48.5, 0), App.Vector(138.5, 48.5, 0)),  # 8
    Part.LineSegment(App.Vector(138.5, 48.5, 0), App.Vector(138.5, 54.9, 0)),  # 9
    Part.LineSegment(App.Vector(138.5, 54.9, 0), App.Vector(131.5, 54.9, 0)),  # 10
    Part.Circle(App.Vector(134.5, 51.5, 0), App.Vector(0, 0, 1), 1.5),  # 11
    Part.LineSegment(App.Vector(131.5, 4.5, 0), App.Vector(131.5, 1.1, 0)),  # 12
    Part.LineSegment(App.Vector(131.5, 1.1, 0), App.Vector(138.5, 1.1, 0)),  # 13
    Part.LineSegment(App.Vector(138.5, 1.1, 0), App.Vector(138.5, 7.5, 0)),  # 14
    Part.LineSegment(App.Vector(138.5, 7.5, 0), App.Vector(134.5, 7.5, 0)),  # 15
    Part.ArcOfCircle(Part.Circle(App.Vector(134.5, 4.5, 0), App.Vector(0, 0, 1), 3), math.radians(90), math.radians(180)),  # 16
    Part.Circle(App.Vector(134.5, 4.5, 0), App.Vector(0, 0, 1), 1.5),  # 17
    Part.LineSegment(App.Vector(8.5, 1.1, 0), App.Vector(8.5, 4.5, 0)),  # 18
    Part.ArcOfCircle(Part.Circle(App.Vector(5.5, 4.5, 0), App.Vector(0, 0, 1), 3), math.radians(0), math.radians(90)),  # 19
    Part.LineSegment(App.Vector(5.5, 7.5, 0), App.Vector(1.5, 7.5, 0)),  # 20
    Part.LineSegment(App.Vector(1.5, 7.5, 0), App.Vector(1.5, 1.1, 0)),  # 21
    Part.LineSegment(App.Vector(1.5, 1.1, 0), App.Vector(8.5, 1.1, 0)),  # 22
    Part.Circle(App.Vector(5.5, 4.5, 0), App.Vector(0, 0, 1), 1.5),  # 23
], False)
sketch5.addConstraint([
    Sketcher.Constraint("Coincident", 0, 2, 1, 1),
    Sketcher.Constraint("Coincident", 1, 2, 2, 1),
    Sketcher.Constraint("Coincident", 2, 2, 3, 1),
    Sketcher.Constraint("Tangent", 3, 2, 4, 1),
    Sketcher.Constraint("Tangent", 4, 2, 0, 1),
    Sketcher.Constraint("Tangent", 6, 2, 7, 1),
    Sketcher.Constraint("Tangent", 7, 2, 8, 1),
    Sketcher.Constraint("Coincident", 8, 2, 9, 1),
    Sketcher.Constraint("Coincident", 9, 2, 10, 1),
    Sketcher.Constraint("Coincident", 10, 2, 6, 1),
    Sketcher.Constraint("Coincident", 12, 2, 13, 1),
    Sketcher.Constraint("Coincident", 13, 2, 14, 1),
    Sketcher.Constraint("Coincident", 14, 2, 15, 1),
    Sketcher.Constraint("Tangent", 15, 2, 16, 1),
    Sketcher.Constraint("Tangent", 16, 2, 12, 1),
    Sketcher.Constraint("Tangent", 18, 2, 19, 1),
    Sketcher.Constraint("Tangent", 19, 2, 20, 1),
    Sketcher.Constraint("Coincident", 20, 2, 21, 1),
    Sketcher.Constraint("Coincident", 21, 2, 22, 1),
    Sketcher.Constraint("Coincident", 22, 2, 18, 1),
    Sketcher.Constraint("Vertical", 0),
    Sketcher.Constraint("Horizontal", 1),
    Sketcher.Constraint("Vertical", 2),
    Sketcher.Constraint("Horizontal", 3),
    Sketcher.Constraint("Vertical", 6),
    Sketcher.Constraint("Horizontal", 8),
    Sketcher.Constraint("Vertical", 9),
    Sketcher.Constraint("Horizontal", 10),
    Sketcher.Constraint("Vertical", 12),
    Sketcher.Constraint("Horizontal", 13),
    Sketcher.Constraint("Vertical", 14),
    Sketcher.Constraint("Horizontal", 15),
    Sketcher.Constraint("Vertical", 18),
    Sketcher.Constraint("Horizontal", 20),
    Sketcher.Constraint("Vertical", 21),
    Sketcher.Constraint("Horizontal", 22),
    Sketcher.Constraint("Coincident", 5, 3, 4, 3),
    Sketcher.Constraint("Coincident", 11, 3, 7, 3),
    Sketcher.Constraint("Coincident", 17, 3, 16, 3),
    Sketcher.Constraint("Coincident", 23, 3, 19, 3),
    Sketcher.Constraint("Equal", 4, 7),
    Sketcher.Constraint("Equal", 5, 11),
    Sketcher.Constraint("Equal", 7, 16),
    Sketcher.Constraint("Equal", 11, 17),
    Sketcher.Constraint("Equal", 16, 19),
    Sketcher.Constraint("Equal", 17, 23),
    Sketcher.Constraint("Horizontal", 5, 3, 7, 3),
    Sketcher.Constraint("Horizontal", 17, 3, 19, 3),
    Sketcher.Constraint("Horizontal", 1, 2, 9, 2),
    Sketcher.Constraint("Horizontal", 13, 2, 21, 2),
    Sketcher.Constraint("Vertical", 11, 3, 16, 3),
    Sketcher.Constraint("Vertical", 5, 3, 19, 3),
    Sketcher.Constraint("Vertical", 9, 2, 13, 2),
    Sketcher.Constraint("Vertical", 2, 2, 20, 2),
    Sketcher.Constraint("Equal", 3, 8),
    Sketcher.Constraint("Equal", 6, 12),
    Sketcher.Constraint("Diameter", 5, Q("3 mm")),
    Sketcher.Constraint("Radius", 4, Q("3 mm")),
    Sketcher.Constraint("DistanceX", 4, 3, 7, 3, Q("129 mm")),
    Sketcher.Constraint("DistanceY", 16, 3, 7, 3, Q("47 mm")),
    Sketcher.Constraint("DistanceX", -1, 1, 4, 3, Q("5.5 mm")),
    Sketcher.Constraint("DistanceY", -1, 1, 4, 3, Q("51.5 mm")),
    Sketcher.Constraint("DistanceX", 1, 2, 1, 1, Q("7.03851 mm")),
    Sketcher.Constraint("DistanceY", 0, 1, 0, 2, Q("3.380942 mm")),
])
sketch5.setExpression("Constraints[56]", "Params.sketch5_diameter")
sketch5.setExpression("Constraints[57]", "Params.sketch5_radius")
pad4 = body.newObject("PartDesign::Pad", "Pad003")
pad4.Profile = sketch5
pad4.setExpression("Length", "Params.pad4_length")

doc.recompute()
